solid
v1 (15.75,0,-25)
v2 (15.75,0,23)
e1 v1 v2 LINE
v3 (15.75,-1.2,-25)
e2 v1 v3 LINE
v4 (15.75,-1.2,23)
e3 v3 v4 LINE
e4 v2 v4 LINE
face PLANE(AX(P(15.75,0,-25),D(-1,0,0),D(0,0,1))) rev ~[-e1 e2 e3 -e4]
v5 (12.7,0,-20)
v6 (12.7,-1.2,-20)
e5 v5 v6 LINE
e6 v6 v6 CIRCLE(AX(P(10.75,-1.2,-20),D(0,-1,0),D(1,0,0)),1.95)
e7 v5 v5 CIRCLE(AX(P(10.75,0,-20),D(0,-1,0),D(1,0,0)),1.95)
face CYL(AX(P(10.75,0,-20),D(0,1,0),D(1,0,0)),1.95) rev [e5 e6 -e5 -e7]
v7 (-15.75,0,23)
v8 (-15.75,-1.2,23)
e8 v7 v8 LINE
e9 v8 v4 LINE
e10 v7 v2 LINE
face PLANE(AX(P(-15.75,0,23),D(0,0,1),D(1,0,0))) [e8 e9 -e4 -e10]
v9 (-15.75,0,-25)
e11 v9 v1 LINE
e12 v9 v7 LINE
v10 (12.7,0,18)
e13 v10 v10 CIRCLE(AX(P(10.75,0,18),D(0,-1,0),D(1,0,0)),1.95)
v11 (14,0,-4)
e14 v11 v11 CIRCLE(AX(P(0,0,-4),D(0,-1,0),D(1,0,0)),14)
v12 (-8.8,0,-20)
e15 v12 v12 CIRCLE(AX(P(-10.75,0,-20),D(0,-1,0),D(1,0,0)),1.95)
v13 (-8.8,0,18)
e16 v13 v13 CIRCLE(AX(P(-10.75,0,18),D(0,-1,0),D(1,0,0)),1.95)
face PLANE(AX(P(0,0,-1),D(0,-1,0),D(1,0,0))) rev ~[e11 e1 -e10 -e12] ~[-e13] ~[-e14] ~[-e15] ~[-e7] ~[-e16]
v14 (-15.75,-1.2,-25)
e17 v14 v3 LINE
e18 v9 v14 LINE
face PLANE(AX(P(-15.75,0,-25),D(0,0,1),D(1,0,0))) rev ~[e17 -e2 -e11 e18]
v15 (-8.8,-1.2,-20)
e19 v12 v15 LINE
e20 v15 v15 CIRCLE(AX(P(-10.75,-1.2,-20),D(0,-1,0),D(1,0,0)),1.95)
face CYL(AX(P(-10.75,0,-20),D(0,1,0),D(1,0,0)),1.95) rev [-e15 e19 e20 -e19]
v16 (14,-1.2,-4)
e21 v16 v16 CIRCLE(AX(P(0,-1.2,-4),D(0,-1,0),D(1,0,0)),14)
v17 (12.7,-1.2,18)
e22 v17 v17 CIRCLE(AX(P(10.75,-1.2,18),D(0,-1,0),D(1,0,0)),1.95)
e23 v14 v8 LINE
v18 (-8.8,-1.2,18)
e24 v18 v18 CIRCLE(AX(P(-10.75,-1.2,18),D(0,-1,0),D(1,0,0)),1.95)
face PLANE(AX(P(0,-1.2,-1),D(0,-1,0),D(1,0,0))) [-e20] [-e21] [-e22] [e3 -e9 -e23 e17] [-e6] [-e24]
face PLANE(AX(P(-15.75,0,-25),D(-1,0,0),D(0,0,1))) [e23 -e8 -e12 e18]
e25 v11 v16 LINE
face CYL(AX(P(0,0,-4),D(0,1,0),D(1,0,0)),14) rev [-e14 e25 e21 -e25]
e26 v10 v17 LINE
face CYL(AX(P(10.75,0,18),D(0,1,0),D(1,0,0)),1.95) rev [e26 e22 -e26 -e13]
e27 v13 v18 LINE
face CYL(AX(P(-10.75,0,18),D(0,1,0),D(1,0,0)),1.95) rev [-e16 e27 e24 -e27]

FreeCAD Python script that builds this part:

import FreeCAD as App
import Part
import Sketcher

V = App.Vector
Q = App.Units.Quantity

doc = App.newDocument("Part")
body = doc.addObject("PartDesign::Body", "Body")

# Sketch on XZ plane
sketch1 = body.newObject("Sketcher::SketchObject", "Sketch")
sketch1.AttachmentSupport = (doc.getObject("XZ_Plane"), [""])
sketch1.MapMode = "FlatFace"
sketch1.addGeometry([
    Part.LineSegment(V(-15.8, 23, 0), V(-15.8, -25, 0)),  # 0
    Part.LineSegment(V(-15.8, -25, 0), V(15.8, -25, 0)),  # 1
    Part.LineSegment(V(15.8, -25, 0), V(15.8, 23, 0)),  # 2
    Part.LineSegment(V(15.8, 23, 0), V(-15.8, 23, 0)),  # 3
    Part.Circle(V(-10.8, -20, 0), V(0, 0, 1), 1.9),  # 4
    Part.Circle(V(10.8, -20, 0), V(0, 0, 1), 1.9),  # 5
    Part.Circle(V(0, -4, 0), V(0, 0, 1), 14),  # 6
    Part.Circle(V(-10.8, 18, 0), V(0, 0, 1), 1.9),  # 7
    Part.Circle(V(10.8, 18, 0), V(0, 0, 1), 1.9),  # 8
], False)
sketch1.addConstraint([
    Sketcher.Constraint("Coincident", 0, 2, 1, 1),
    Sketcher.Constraint("Coincident", 1, 2, 2, 1),
    Sketcher.Constraint("Coincident", 2, 2, 3, 1),
    Sketcher.Constraint("Coincident", 3, 2, 0, 1),
    Sketcher.Constraint("Vertical", 0),
    Sketcher.Constraint("Horizontal", 1),
    Sketcher.Constraint("Vertical", 2),
    Sketcher.Constraint("Horizontal", 3),
    Sketcher.Constraint("Equal", 4, 5),
    Sketcher.Constraint("Equal", 5, 7),
    Sketcher.Constraint("Equal", 7, 8),
    Sketcher.Constraint("Symmetric", 4, 3, 5, 3, -2),
    Sketcher.Constraint("Symmetric", 7, 3, 8, 3, -2),
    Sketcher.Constraint("PointOnObject", 6, 3, -2),
    Sketcher.Constraint("Vertical", 4, 3, 7, 3),
    Sketcher.Constraint("Diameter", 6, Q("28 mm")),
    Sketcher.Constraint("Diameter", 4, Q("3.9 mm")),
    Sketcher.Constraint("DistanceY", 0, 2, 0, 1, Q("48 mm")),
    Sketcher.Constraint("DistanceX", 1, 1, 1, 2, Q("31.5 mm")),
    Sketcher.Constraint("DistanceY", 4, 3, -1, 1, Q("20 mm")),
    Sketcher.Constraint("DistanceY", 6, 3, -1, 1, Q("4 mm")),
    Sketcher.Constraint("DistanceY", -1, 1, 7, 3, Q("18 mm")),
    Sketcher.Constraint("DistanceY", 0, 2, -1, 1, Q("25 mm")),
    Sketcher.Constraint("DistanceX", 0, 2, 4, 3, Q("5 mm")),
    Sketcher.Constraint("DistanceX", 5, 3, 1, 2, Q("5 mm")),
])
pad1 = body.newObject("PartDesign::Pad", "Pad")
pad1.Profile = sketch1
pad1.Length = 1.2

doc.recompute()
